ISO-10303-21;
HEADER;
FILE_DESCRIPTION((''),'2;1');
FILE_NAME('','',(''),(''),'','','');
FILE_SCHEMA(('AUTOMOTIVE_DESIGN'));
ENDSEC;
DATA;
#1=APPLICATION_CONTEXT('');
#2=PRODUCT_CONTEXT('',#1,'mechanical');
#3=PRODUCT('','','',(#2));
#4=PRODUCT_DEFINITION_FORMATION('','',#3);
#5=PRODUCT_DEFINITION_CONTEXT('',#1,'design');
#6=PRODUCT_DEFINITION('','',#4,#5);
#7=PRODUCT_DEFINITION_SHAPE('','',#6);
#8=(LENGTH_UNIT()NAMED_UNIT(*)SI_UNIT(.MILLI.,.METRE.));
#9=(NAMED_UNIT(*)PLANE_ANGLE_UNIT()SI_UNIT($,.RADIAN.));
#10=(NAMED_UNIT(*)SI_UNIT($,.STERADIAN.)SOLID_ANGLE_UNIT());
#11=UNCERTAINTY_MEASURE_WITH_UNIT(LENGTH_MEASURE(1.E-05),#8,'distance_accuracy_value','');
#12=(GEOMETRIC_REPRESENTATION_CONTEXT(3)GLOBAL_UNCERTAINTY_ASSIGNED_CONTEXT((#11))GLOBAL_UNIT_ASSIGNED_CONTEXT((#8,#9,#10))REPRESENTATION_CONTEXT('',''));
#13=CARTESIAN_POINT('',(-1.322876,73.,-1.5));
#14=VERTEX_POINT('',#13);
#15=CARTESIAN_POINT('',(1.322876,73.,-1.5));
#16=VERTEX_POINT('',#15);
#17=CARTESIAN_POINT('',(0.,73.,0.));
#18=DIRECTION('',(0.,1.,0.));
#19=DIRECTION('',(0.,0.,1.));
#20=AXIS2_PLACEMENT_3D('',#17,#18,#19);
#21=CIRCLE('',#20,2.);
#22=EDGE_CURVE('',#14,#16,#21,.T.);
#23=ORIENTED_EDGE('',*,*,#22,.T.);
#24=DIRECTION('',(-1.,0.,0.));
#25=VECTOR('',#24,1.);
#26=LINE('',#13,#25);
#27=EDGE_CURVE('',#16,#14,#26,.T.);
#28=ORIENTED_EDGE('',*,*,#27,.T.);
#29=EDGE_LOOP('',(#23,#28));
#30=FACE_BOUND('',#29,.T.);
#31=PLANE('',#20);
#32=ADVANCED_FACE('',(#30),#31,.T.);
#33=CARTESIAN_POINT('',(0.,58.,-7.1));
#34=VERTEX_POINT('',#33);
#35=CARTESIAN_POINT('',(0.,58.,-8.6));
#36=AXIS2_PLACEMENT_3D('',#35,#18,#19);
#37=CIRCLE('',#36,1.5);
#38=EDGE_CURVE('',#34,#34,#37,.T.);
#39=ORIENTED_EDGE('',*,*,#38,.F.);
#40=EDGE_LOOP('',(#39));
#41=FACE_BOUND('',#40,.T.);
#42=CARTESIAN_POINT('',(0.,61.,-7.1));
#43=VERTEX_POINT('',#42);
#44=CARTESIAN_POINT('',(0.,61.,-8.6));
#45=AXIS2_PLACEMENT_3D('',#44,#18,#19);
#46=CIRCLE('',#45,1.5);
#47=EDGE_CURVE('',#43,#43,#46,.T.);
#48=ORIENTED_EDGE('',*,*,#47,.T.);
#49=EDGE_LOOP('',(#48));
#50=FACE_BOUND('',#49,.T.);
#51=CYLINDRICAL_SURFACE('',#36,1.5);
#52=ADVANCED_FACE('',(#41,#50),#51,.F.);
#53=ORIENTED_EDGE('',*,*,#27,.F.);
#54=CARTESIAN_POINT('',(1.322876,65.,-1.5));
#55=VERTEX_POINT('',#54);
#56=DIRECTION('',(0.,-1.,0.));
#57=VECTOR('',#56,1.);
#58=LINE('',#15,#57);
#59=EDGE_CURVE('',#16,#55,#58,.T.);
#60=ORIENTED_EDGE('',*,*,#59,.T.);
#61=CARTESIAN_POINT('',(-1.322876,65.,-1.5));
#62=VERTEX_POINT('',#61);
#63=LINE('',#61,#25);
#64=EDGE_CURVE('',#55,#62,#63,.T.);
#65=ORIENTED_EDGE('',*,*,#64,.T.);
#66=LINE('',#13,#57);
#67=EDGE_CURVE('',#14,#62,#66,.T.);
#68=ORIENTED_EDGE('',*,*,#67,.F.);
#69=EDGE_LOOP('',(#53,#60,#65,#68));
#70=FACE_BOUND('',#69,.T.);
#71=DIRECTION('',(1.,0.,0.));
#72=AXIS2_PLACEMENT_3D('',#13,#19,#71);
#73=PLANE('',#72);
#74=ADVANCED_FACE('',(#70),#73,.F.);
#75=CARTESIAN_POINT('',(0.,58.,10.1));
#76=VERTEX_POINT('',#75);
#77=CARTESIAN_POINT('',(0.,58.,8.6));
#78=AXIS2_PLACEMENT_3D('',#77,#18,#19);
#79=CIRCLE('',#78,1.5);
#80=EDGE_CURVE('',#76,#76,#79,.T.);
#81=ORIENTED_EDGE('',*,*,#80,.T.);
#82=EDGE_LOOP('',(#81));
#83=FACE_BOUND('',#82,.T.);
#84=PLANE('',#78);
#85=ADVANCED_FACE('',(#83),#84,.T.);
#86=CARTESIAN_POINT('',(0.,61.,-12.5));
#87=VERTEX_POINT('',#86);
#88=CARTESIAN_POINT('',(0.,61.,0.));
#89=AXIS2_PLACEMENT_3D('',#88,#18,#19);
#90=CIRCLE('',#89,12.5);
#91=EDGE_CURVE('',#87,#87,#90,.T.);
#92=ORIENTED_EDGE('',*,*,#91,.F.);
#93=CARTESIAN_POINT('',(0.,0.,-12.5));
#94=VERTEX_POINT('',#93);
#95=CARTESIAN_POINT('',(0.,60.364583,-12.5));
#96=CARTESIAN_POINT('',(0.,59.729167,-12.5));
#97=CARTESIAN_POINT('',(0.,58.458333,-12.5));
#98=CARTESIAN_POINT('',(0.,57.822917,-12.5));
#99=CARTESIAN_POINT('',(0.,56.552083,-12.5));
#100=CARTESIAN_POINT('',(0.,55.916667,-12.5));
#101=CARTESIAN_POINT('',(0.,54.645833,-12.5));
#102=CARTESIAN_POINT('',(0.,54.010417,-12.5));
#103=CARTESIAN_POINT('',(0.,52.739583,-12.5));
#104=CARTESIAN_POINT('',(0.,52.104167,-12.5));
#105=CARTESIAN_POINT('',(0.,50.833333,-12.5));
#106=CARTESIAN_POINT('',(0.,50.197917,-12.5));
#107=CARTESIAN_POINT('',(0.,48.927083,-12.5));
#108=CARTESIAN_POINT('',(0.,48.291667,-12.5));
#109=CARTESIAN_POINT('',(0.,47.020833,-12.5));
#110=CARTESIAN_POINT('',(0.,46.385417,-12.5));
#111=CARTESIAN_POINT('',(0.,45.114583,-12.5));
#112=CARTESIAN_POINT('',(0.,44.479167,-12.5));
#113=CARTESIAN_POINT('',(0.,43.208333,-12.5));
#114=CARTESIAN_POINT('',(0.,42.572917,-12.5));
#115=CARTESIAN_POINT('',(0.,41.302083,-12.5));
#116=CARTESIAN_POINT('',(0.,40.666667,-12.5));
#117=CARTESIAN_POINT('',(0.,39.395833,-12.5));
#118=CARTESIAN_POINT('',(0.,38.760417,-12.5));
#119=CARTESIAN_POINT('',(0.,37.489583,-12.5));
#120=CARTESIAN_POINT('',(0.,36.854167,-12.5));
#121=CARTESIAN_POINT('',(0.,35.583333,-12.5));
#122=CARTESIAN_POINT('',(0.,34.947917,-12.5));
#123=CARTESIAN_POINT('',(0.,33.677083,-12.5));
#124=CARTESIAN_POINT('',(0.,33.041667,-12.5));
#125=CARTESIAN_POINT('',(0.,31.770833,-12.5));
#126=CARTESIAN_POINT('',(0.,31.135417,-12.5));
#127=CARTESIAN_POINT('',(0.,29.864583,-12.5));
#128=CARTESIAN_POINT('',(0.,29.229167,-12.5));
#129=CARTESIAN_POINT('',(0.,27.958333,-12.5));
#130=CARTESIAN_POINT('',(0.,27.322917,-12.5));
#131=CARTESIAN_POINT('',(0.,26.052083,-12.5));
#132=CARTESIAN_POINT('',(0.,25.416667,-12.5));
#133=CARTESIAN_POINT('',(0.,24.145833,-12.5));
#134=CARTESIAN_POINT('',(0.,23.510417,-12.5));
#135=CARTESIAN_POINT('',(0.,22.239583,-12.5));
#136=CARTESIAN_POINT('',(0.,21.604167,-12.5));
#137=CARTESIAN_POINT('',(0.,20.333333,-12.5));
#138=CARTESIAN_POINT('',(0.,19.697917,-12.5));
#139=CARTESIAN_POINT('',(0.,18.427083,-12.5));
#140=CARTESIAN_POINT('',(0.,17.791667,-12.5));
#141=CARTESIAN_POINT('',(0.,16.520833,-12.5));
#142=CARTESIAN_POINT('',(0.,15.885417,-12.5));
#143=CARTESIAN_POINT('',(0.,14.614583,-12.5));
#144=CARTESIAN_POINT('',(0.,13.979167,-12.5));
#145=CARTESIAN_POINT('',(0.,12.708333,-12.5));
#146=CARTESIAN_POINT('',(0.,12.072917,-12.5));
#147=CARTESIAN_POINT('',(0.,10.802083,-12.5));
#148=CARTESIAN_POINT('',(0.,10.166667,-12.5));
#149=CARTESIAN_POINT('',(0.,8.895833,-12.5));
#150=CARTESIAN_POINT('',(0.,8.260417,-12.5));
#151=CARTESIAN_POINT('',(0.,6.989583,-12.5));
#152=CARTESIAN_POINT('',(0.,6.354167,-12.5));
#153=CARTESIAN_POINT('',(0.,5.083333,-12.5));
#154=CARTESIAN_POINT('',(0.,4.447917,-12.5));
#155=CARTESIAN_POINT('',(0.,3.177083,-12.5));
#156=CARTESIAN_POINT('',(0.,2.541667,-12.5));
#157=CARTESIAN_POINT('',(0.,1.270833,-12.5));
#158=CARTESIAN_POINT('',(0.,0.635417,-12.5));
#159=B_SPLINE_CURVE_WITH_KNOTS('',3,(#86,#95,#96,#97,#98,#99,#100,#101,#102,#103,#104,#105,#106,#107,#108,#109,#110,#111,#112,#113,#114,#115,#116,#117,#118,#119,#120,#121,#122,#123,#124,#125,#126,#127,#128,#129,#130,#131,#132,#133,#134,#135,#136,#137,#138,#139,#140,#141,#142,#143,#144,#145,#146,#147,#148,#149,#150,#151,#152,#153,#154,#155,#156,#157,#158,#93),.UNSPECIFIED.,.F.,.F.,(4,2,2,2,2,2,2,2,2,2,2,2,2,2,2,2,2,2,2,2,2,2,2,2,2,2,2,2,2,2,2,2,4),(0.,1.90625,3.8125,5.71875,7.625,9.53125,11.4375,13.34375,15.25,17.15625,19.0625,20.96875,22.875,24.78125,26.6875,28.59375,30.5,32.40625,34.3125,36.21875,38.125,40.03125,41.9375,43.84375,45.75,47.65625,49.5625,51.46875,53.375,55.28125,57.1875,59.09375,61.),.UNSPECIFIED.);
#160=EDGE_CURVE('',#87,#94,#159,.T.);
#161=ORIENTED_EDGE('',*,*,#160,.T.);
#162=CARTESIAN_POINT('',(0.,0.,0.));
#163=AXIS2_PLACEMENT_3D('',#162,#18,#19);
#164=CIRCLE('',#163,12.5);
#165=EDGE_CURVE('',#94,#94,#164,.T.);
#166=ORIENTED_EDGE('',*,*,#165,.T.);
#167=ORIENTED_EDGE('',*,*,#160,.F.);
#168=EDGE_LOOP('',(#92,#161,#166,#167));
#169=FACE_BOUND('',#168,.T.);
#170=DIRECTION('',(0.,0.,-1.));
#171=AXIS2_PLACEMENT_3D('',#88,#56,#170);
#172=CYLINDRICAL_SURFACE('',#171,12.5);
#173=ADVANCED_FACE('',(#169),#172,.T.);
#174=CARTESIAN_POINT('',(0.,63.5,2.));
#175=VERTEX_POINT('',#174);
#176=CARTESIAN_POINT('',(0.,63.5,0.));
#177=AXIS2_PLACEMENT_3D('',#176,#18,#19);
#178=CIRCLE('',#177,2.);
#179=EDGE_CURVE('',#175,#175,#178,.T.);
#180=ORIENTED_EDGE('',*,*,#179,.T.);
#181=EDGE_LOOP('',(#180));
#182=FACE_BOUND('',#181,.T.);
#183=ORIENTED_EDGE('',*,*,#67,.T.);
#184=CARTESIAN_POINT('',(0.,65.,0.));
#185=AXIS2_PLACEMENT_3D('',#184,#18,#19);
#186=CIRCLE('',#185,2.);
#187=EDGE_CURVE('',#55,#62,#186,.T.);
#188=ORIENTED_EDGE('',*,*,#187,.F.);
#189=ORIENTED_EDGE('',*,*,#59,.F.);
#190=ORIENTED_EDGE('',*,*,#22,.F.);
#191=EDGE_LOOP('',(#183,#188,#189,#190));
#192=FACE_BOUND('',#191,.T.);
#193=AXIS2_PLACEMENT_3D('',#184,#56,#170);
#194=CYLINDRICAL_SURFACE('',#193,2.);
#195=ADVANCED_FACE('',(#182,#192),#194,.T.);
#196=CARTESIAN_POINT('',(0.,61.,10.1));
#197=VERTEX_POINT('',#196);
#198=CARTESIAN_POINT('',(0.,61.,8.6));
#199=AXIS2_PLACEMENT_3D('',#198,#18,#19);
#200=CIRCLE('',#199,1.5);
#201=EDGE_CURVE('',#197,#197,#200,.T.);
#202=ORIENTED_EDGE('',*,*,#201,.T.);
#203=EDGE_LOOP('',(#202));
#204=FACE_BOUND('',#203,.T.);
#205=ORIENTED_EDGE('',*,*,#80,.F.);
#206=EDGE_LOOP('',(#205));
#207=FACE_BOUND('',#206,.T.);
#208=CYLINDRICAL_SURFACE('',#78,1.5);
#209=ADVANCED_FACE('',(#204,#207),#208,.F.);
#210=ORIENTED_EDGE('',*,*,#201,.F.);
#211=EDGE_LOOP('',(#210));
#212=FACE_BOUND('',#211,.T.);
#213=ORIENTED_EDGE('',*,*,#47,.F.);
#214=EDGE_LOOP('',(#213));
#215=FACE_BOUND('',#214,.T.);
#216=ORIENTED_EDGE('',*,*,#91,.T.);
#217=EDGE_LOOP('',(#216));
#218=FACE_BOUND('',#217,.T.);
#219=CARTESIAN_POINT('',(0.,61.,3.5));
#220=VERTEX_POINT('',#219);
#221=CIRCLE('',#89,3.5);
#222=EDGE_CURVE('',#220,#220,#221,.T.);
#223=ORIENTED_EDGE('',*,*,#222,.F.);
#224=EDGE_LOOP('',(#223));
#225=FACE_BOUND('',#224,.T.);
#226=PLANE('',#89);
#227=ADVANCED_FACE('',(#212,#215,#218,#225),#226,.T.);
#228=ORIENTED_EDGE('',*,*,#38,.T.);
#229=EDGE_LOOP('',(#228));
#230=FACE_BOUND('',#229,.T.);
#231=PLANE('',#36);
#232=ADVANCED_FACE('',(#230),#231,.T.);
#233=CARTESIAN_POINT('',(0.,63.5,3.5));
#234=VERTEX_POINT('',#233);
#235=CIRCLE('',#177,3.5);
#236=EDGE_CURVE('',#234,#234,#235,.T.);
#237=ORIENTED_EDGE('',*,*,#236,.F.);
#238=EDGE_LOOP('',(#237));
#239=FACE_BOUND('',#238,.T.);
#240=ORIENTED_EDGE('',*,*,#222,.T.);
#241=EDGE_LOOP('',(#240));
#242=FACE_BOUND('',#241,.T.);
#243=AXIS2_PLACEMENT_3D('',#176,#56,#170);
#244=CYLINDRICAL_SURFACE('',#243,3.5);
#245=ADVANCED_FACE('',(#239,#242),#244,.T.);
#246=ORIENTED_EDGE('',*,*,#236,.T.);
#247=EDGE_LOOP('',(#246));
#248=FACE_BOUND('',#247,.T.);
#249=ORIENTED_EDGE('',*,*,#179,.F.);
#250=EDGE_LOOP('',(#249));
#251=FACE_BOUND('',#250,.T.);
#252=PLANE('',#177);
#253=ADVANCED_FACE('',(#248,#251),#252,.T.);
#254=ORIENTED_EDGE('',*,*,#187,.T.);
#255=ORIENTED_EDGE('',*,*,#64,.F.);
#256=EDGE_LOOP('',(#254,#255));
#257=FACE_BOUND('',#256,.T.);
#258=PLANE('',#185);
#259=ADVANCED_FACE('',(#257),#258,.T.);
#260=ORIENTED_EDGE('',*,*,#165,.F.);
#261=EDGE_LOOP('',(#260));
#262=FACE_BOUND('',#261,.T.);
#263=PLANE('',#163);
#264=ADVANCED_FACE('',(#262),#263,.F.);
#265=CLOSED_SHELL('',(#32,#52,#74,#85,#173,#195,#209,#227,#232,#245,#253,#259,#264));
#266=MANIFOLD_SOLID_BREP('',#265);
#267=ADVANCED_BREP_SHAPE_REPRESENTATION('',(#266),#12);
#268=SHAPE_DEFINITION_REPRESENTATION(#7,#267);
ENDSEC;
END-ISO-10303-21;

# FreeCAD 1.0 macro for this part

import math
import FreeCAD as App
import Part
import Sketcher

V = App.Vector

doc = App.newDocument("Part")
body = doc.addObject("PartDesign::Body", "Body")

sketch1 = body.newObject("Sketcher::SketchObject", "Sketch")
sketch1.AttachmentSupport = (doc.getObject("XZ_Plane"), [""])
sketch1.MapMode = "FlatFace"
sketch1.addGeometry(Part.Circle(V(0, 0, 0), V(0, 0, 1), 12.5), False)
sketch1.addConstraint([
    Sketcher.Constraint("Coincident", 0, 3, -1, 1),
    Sketcher.Constraint("Diameter", 0, 25.0),
])
pad1 = body.newObject("PartDesign::Pad", "Pad")
pad1.Profile = sketch1
pad1.Length = 61
pad1.Reversed = True

sketch2 = body.newObject("Sketcher::SketchObject", "Sketch001")
sketch2.AttachmentSupport = (doc.getObject("XZ_Plane"), [""])
sketch2.MapMode = "FlatFace"
sketch2.AttachmentOffset = App.Placement(V(0, 0, -61), App.Rotation())
sketch2.addGeometry(Part.Circle(V(0, 0, 0), V(0, 0, 1), 3.5), False)
sketch2.addConstraint([
    Sketcher.Constraint("Coincident", 0, 3, -1, 1),
    Sketcher.Constraint("Diameter", 0, 7.0),
])
pad2 = body.newObject("PartDesign::Pad", "Pad001")
pad2.Profile = sketch2
pad2.Length = 2.5
pad2.Reversed = True

sketch3 = body.newObject("Sketcher::SketchObject", "Sketch002")
sketch3.AttachmentSupport = (doc.getObject("XZ_Plane"), [""])
sketch3.MapMode = "FlatFace"
sketch3.AttachmentOffset = App.Placement(V(0, 0, -63.5), App.Rotation())
sketch3.addGeometry(Part.Circle(V(0, 0, 0), V(0, 0, 1), 2), False)
sketch3.addConstraint([
    Sketcher.Constraint("Coincident", 0, 3, -1, 1),
    Sketcher.Constraint("Diameter", 0, 4.0),
])
pad3 = body.newObject("PartDesign::Pad", "Pad002")
pad3.Profile = sketch3
pad3.Length = 1.5
pad3.Reversed = True

sketch4 = body.newObject("Sketcher::SketchObject", "Sketch003")
sketch4.AttachmentSupport = (doc.getObject("XZ_Plane"), [""])
sketch4.MapMode = "FlatFace"
sketch4.AttachmentOffset = App.Placement(V(0, 0, -65), App.Rotation())
sketch4.addGeometry([
    Part.LineSegment(V(1.322876, -1.5, 0), V(-1.322876, -1.5, 0)),
    Part.ArcOfCircle(Part.Circle(V(0, 0, 0), V(0, 0, 1), 2), math.radians(-48.590368), math.radians(228.590368)),
], False)
sketch4.addConstraint([
    Sketcher.Constraint("Coincident", 0, 1, 1, 1),
    Sketcher.Constraint("Coincident", 1, 2, 0, 2),
    Sketcher.Constraint("Horizontal", 0),
    Sketcher.Constraint("Coincident", 1, 3, -1, 1),
    Sketcher.Constraint("Radius", 1, 2.0),
    Sketcher.Constraint("DistanceY", 0, 1, -1, 1, 1.5),
])
pad4 = body.newObject("PartDesign::Pad", "Pad003")
pad4.Profile = sketch4
pad4.Length = 8
pad4.Reversed = True

sketch5 = body.newObject("Sketcher::SketchObject", "Sketch004")
sketch5.AttachmentSupport = (doc.getObject("XZ_Plane"), [""])
sketch5.MapMode = "FlatFace"
sketch5.AttachmentOffset = App.Placement(V(0, 0, -61), App.Rotation())
sketch5.addGeometry([
    Part.Circle(V(0, -8.6, 0), V(0, 0, 1), 1.5),
    Part.Circle(V(0, 8.6, 0), V(0, 0, 1), 1.5),
], False)
sketch5.addConstraint([
    Sketcher.Constraint("Equal", 0, 1),
    Sketcher.Constraint("Symmetric", 0, 3, 1, 3, -1, 1),
    Sketcher.Constraint("PointOnObject", 0, 3, -2),
    Sketcher.Constraint("Diameter", 0, 3.0),
    Sketcher.Constraint("DistanceY", 0, 3, -1, 1, 8.6),
])
pocket1 = body.newObject("PartDesign::Pocket", "Pocket")
pocket1.Profile = sketch5
pocket1.Length = 3
pocket1.Reversed = True

doc.recompute()
